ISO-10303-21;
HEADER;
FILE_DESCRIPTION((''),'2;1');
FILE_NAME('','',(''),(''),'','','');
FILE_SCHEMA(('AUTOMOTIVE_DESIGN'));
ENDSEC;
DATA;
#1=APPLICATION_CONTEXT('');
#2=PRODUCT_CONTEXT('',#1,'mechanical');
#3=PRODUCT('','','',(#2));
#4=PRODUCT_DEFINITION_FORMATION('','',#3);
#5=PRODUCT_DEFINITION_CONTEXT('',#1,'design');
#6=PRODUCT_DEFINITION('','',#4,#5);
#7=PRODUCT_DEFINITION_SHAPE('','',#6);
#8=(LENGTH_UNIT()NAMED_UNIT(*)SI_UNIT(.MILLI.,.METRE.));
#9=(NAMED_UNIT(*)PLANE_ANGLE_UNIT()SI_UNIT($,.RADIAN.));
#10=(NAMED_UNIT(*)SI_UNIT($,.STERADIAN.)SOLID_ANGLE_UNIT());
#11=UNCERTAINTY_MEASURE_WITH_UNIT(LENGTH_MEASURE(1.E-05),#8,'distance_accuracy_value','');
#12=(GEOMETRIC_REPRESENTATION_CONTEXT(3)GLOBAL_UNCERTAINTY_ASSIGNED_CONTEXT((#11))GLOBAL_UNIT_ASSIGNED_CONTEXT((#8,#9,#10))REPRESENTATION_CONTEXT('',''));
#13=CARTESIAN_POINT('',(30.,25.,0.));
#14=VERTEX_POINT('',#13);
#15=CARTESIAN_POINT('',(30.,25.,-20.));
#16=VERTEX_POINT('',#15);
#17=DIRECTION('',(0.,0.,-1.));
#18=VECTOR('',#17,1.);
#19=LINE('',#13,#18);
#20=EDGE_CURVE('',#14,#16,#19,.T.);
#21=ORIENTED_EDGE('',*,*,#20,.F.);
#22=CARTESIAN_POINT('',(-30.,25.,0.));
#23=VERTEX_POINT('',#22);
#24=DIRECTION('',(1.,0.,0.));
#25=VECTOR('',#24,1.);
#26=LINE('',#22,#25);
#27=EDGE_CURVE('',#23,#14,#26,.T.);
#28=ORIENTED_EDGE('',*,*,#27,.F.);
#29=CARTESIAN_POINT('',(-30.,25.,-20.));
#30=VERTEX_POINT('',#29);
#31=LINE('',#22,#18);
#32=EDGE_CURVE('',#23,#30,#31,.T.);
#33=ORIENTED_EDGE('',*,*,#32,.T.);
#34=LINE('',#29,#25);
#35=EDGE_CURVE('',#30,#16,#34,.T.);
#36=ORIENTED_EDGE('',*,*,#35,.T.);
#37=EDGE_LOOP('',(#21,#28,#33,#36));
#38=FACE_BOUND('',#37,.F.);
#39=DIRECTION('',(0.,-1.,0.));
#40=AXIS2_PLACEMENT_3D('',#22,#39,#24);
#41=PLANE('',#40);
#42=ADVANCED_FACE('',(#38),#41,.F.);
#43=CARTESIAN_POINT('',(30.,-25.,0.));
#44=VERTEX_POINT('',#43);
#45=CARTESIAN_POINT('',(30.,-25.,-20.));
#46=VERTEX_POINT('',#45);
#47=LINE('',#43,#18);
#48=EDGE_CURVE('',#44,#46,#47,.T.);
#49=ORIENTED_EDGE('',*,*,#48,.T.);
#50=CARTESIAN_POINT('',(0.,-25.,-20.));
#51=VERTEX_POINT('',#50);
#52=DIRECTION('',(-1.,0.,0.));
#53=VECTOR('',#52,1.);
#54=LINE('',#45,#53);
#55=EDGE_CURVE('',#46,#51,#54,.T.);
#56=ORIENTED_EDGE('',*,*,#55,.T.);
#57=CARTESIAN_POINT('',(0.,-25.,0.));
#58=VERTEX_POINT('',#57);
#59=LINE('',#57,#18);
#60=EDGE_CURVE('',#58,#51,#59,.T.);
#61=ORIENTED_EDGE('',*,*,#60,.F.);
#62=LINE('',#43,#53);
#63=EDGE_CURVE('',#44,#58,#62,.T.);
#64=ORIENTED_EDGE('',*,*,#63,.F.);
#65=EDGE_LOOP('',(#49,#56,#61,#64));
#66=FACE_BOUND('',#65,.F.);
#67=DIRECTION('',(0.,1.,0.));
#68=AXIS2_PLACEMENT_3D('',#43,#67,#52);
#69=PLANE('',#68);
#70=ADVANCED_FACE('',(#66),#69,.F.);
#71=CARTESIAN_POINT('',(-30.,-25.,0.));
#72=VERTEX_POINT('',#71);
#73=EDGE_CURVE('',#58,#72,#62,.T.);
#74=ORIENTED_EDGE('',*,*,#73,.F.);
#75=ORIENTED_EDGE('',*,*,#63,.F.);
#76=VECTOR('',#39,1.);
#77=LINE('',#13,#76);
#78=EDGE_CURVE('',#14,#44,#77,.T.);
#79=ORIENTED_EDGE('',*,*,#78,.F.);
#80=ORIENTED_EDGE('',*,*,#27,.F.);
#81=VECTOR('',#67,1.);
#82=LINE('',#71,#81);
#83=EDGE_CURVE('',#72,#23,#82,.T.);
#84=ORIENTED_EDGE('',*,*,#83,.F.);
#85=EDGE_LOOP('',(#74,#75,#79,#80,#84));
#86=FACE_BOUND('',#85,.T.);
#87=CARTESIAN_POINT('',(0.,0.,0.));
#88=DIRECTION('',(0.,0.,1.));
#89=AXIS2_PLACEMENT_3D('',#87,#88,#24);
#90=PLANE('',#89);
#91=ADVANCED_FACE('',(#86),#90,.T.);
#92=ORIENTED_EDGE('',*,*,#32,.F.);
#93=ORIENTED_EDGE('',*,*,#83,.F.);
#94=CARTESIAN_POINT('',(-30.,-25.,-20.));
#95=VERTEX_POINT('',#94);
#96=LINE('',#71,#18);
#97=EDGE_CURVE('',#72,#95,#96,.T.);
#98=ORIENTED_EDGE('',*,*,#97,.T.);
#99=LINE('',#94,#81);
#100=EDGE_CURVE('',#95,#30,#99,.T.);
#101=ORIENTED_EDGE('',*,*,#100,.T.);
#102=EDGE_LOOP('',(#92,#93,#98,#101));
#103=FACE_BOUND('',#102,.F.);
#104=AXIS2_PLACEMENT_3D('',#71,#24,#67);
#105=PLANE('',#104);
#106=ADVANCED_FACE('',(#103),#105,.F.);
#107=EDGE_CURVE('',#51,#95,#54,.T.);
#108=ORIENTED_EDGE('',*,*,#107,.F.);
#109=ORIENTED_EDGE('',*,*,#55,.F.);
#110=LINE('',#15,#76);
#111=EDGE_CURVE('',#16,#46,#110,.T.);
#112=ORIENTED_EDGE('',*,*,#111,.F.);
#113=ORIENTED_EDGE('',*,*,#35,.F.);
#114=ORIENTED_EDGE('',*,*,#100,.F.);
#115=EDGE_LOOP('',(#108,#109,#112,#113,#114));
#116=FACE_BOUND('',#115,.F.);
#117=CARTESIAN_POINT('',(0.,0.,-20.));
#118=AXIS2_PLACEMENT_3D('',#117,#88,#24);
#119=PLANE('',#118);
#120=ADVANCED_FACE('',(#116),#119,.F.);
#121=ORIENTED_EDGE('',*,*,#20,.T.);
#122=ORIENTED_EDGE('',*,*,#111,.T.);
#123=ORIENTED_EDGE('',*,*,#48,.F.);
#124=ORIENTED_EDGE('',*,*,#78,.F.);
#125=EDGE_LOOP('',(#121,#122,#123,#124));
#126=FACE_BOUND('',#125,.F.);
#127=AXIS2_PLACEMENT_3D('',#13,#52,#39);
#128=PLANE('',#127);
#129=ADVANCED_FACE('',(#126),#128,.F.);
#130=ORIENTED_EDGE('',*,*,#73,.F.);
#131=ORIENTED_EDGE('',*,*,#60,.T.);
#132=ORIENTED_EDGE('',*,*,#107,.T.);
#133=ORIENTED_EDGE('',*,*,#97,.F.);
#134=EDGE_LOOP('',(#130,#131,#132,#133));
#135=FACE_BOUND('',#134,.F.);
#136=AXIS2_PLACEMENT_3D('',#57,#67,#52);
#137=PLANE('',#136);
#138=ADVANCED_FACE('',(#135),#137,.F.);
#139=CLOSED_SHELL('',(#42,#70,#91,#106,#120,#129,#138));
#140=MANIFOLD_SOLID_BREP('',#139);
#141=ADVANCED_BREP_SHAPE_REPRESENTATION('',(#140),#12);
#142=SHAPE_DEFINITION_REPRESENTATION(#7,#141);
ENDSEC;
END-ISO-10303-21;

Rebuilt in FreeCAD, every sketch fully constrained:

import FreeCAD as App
import Part
import Sketcher

doc = App.newDocument("Part")
body = doc.addObject("PartDesign::Body", "Body")

sketch1 = body.newObject("Sketcher::SketchObject", "Sketch")
sketch1.AttachmentSupport = (doc.getObject("XY_Plane"), [""])
sketch1.MapMode = "FlatFace"
sketch1.addGeometry(Part.LineSegment(App.Vector(30, 25, 0), App.Vector(-30, 25, 0)), False)
sketch1.addGeometry(Part.LineSegment(App.Vector(-30, 25, 0), App.Vector(-30, -25, 0)), False)
sketch1.addGeometry(Part.LineSegment(App.Vector(-30, -25, 0), App.Vector(30, -25, 0)), False)
sketch1.addGeometry(Part.LineSegment(App.Vector(30, -25, 0), App.Vector(30, 25, 0)), False)
sketch1.addConstraint(Sketcher.Constraint("Coincident", 0, 2, 1, 1))
sketch1.addConstraint(Sketcher.Constraint("Coincident", 1, 2, 2, 1))
sketch1.addConstraint(Sketcher.Constraint("Coincident", 2, 2, 3, 1))
sketch1.addConstraint(Sketcher.Constraint("Coincident", 3, 2, 0, 1))
sketch1.addConstraint(Sketcher.Constraint("Horizontal", 0))
sketch1.addConstraint(Sketcher.Constraint("Vertical", 1))
sketch1.addConstraint(Sketcher.Constraint("Horizontal", 2))
sketch1.addConstraint(Sketcher.Constraint("Vertical", 3))
sketch1.addConstraint(Sketcher.Constraint("Symmetric", 0, 2, 2, 2, -1, 1))
sketch1.addConstraint(Sketcher.Constraint("DistanceX", 0, 2, 0, 1, 60.0))
sketch1.addConstraint(Sketcher.Constraint("DistanceY", 1, 2, 1, 1, 50.0))
pad1 = body.newObject("PartDesign::Pad", "Pad")
pad1.Profile = sketch1
pad1.Length = 20
pad1.Reversed = True

doc.recompute()
